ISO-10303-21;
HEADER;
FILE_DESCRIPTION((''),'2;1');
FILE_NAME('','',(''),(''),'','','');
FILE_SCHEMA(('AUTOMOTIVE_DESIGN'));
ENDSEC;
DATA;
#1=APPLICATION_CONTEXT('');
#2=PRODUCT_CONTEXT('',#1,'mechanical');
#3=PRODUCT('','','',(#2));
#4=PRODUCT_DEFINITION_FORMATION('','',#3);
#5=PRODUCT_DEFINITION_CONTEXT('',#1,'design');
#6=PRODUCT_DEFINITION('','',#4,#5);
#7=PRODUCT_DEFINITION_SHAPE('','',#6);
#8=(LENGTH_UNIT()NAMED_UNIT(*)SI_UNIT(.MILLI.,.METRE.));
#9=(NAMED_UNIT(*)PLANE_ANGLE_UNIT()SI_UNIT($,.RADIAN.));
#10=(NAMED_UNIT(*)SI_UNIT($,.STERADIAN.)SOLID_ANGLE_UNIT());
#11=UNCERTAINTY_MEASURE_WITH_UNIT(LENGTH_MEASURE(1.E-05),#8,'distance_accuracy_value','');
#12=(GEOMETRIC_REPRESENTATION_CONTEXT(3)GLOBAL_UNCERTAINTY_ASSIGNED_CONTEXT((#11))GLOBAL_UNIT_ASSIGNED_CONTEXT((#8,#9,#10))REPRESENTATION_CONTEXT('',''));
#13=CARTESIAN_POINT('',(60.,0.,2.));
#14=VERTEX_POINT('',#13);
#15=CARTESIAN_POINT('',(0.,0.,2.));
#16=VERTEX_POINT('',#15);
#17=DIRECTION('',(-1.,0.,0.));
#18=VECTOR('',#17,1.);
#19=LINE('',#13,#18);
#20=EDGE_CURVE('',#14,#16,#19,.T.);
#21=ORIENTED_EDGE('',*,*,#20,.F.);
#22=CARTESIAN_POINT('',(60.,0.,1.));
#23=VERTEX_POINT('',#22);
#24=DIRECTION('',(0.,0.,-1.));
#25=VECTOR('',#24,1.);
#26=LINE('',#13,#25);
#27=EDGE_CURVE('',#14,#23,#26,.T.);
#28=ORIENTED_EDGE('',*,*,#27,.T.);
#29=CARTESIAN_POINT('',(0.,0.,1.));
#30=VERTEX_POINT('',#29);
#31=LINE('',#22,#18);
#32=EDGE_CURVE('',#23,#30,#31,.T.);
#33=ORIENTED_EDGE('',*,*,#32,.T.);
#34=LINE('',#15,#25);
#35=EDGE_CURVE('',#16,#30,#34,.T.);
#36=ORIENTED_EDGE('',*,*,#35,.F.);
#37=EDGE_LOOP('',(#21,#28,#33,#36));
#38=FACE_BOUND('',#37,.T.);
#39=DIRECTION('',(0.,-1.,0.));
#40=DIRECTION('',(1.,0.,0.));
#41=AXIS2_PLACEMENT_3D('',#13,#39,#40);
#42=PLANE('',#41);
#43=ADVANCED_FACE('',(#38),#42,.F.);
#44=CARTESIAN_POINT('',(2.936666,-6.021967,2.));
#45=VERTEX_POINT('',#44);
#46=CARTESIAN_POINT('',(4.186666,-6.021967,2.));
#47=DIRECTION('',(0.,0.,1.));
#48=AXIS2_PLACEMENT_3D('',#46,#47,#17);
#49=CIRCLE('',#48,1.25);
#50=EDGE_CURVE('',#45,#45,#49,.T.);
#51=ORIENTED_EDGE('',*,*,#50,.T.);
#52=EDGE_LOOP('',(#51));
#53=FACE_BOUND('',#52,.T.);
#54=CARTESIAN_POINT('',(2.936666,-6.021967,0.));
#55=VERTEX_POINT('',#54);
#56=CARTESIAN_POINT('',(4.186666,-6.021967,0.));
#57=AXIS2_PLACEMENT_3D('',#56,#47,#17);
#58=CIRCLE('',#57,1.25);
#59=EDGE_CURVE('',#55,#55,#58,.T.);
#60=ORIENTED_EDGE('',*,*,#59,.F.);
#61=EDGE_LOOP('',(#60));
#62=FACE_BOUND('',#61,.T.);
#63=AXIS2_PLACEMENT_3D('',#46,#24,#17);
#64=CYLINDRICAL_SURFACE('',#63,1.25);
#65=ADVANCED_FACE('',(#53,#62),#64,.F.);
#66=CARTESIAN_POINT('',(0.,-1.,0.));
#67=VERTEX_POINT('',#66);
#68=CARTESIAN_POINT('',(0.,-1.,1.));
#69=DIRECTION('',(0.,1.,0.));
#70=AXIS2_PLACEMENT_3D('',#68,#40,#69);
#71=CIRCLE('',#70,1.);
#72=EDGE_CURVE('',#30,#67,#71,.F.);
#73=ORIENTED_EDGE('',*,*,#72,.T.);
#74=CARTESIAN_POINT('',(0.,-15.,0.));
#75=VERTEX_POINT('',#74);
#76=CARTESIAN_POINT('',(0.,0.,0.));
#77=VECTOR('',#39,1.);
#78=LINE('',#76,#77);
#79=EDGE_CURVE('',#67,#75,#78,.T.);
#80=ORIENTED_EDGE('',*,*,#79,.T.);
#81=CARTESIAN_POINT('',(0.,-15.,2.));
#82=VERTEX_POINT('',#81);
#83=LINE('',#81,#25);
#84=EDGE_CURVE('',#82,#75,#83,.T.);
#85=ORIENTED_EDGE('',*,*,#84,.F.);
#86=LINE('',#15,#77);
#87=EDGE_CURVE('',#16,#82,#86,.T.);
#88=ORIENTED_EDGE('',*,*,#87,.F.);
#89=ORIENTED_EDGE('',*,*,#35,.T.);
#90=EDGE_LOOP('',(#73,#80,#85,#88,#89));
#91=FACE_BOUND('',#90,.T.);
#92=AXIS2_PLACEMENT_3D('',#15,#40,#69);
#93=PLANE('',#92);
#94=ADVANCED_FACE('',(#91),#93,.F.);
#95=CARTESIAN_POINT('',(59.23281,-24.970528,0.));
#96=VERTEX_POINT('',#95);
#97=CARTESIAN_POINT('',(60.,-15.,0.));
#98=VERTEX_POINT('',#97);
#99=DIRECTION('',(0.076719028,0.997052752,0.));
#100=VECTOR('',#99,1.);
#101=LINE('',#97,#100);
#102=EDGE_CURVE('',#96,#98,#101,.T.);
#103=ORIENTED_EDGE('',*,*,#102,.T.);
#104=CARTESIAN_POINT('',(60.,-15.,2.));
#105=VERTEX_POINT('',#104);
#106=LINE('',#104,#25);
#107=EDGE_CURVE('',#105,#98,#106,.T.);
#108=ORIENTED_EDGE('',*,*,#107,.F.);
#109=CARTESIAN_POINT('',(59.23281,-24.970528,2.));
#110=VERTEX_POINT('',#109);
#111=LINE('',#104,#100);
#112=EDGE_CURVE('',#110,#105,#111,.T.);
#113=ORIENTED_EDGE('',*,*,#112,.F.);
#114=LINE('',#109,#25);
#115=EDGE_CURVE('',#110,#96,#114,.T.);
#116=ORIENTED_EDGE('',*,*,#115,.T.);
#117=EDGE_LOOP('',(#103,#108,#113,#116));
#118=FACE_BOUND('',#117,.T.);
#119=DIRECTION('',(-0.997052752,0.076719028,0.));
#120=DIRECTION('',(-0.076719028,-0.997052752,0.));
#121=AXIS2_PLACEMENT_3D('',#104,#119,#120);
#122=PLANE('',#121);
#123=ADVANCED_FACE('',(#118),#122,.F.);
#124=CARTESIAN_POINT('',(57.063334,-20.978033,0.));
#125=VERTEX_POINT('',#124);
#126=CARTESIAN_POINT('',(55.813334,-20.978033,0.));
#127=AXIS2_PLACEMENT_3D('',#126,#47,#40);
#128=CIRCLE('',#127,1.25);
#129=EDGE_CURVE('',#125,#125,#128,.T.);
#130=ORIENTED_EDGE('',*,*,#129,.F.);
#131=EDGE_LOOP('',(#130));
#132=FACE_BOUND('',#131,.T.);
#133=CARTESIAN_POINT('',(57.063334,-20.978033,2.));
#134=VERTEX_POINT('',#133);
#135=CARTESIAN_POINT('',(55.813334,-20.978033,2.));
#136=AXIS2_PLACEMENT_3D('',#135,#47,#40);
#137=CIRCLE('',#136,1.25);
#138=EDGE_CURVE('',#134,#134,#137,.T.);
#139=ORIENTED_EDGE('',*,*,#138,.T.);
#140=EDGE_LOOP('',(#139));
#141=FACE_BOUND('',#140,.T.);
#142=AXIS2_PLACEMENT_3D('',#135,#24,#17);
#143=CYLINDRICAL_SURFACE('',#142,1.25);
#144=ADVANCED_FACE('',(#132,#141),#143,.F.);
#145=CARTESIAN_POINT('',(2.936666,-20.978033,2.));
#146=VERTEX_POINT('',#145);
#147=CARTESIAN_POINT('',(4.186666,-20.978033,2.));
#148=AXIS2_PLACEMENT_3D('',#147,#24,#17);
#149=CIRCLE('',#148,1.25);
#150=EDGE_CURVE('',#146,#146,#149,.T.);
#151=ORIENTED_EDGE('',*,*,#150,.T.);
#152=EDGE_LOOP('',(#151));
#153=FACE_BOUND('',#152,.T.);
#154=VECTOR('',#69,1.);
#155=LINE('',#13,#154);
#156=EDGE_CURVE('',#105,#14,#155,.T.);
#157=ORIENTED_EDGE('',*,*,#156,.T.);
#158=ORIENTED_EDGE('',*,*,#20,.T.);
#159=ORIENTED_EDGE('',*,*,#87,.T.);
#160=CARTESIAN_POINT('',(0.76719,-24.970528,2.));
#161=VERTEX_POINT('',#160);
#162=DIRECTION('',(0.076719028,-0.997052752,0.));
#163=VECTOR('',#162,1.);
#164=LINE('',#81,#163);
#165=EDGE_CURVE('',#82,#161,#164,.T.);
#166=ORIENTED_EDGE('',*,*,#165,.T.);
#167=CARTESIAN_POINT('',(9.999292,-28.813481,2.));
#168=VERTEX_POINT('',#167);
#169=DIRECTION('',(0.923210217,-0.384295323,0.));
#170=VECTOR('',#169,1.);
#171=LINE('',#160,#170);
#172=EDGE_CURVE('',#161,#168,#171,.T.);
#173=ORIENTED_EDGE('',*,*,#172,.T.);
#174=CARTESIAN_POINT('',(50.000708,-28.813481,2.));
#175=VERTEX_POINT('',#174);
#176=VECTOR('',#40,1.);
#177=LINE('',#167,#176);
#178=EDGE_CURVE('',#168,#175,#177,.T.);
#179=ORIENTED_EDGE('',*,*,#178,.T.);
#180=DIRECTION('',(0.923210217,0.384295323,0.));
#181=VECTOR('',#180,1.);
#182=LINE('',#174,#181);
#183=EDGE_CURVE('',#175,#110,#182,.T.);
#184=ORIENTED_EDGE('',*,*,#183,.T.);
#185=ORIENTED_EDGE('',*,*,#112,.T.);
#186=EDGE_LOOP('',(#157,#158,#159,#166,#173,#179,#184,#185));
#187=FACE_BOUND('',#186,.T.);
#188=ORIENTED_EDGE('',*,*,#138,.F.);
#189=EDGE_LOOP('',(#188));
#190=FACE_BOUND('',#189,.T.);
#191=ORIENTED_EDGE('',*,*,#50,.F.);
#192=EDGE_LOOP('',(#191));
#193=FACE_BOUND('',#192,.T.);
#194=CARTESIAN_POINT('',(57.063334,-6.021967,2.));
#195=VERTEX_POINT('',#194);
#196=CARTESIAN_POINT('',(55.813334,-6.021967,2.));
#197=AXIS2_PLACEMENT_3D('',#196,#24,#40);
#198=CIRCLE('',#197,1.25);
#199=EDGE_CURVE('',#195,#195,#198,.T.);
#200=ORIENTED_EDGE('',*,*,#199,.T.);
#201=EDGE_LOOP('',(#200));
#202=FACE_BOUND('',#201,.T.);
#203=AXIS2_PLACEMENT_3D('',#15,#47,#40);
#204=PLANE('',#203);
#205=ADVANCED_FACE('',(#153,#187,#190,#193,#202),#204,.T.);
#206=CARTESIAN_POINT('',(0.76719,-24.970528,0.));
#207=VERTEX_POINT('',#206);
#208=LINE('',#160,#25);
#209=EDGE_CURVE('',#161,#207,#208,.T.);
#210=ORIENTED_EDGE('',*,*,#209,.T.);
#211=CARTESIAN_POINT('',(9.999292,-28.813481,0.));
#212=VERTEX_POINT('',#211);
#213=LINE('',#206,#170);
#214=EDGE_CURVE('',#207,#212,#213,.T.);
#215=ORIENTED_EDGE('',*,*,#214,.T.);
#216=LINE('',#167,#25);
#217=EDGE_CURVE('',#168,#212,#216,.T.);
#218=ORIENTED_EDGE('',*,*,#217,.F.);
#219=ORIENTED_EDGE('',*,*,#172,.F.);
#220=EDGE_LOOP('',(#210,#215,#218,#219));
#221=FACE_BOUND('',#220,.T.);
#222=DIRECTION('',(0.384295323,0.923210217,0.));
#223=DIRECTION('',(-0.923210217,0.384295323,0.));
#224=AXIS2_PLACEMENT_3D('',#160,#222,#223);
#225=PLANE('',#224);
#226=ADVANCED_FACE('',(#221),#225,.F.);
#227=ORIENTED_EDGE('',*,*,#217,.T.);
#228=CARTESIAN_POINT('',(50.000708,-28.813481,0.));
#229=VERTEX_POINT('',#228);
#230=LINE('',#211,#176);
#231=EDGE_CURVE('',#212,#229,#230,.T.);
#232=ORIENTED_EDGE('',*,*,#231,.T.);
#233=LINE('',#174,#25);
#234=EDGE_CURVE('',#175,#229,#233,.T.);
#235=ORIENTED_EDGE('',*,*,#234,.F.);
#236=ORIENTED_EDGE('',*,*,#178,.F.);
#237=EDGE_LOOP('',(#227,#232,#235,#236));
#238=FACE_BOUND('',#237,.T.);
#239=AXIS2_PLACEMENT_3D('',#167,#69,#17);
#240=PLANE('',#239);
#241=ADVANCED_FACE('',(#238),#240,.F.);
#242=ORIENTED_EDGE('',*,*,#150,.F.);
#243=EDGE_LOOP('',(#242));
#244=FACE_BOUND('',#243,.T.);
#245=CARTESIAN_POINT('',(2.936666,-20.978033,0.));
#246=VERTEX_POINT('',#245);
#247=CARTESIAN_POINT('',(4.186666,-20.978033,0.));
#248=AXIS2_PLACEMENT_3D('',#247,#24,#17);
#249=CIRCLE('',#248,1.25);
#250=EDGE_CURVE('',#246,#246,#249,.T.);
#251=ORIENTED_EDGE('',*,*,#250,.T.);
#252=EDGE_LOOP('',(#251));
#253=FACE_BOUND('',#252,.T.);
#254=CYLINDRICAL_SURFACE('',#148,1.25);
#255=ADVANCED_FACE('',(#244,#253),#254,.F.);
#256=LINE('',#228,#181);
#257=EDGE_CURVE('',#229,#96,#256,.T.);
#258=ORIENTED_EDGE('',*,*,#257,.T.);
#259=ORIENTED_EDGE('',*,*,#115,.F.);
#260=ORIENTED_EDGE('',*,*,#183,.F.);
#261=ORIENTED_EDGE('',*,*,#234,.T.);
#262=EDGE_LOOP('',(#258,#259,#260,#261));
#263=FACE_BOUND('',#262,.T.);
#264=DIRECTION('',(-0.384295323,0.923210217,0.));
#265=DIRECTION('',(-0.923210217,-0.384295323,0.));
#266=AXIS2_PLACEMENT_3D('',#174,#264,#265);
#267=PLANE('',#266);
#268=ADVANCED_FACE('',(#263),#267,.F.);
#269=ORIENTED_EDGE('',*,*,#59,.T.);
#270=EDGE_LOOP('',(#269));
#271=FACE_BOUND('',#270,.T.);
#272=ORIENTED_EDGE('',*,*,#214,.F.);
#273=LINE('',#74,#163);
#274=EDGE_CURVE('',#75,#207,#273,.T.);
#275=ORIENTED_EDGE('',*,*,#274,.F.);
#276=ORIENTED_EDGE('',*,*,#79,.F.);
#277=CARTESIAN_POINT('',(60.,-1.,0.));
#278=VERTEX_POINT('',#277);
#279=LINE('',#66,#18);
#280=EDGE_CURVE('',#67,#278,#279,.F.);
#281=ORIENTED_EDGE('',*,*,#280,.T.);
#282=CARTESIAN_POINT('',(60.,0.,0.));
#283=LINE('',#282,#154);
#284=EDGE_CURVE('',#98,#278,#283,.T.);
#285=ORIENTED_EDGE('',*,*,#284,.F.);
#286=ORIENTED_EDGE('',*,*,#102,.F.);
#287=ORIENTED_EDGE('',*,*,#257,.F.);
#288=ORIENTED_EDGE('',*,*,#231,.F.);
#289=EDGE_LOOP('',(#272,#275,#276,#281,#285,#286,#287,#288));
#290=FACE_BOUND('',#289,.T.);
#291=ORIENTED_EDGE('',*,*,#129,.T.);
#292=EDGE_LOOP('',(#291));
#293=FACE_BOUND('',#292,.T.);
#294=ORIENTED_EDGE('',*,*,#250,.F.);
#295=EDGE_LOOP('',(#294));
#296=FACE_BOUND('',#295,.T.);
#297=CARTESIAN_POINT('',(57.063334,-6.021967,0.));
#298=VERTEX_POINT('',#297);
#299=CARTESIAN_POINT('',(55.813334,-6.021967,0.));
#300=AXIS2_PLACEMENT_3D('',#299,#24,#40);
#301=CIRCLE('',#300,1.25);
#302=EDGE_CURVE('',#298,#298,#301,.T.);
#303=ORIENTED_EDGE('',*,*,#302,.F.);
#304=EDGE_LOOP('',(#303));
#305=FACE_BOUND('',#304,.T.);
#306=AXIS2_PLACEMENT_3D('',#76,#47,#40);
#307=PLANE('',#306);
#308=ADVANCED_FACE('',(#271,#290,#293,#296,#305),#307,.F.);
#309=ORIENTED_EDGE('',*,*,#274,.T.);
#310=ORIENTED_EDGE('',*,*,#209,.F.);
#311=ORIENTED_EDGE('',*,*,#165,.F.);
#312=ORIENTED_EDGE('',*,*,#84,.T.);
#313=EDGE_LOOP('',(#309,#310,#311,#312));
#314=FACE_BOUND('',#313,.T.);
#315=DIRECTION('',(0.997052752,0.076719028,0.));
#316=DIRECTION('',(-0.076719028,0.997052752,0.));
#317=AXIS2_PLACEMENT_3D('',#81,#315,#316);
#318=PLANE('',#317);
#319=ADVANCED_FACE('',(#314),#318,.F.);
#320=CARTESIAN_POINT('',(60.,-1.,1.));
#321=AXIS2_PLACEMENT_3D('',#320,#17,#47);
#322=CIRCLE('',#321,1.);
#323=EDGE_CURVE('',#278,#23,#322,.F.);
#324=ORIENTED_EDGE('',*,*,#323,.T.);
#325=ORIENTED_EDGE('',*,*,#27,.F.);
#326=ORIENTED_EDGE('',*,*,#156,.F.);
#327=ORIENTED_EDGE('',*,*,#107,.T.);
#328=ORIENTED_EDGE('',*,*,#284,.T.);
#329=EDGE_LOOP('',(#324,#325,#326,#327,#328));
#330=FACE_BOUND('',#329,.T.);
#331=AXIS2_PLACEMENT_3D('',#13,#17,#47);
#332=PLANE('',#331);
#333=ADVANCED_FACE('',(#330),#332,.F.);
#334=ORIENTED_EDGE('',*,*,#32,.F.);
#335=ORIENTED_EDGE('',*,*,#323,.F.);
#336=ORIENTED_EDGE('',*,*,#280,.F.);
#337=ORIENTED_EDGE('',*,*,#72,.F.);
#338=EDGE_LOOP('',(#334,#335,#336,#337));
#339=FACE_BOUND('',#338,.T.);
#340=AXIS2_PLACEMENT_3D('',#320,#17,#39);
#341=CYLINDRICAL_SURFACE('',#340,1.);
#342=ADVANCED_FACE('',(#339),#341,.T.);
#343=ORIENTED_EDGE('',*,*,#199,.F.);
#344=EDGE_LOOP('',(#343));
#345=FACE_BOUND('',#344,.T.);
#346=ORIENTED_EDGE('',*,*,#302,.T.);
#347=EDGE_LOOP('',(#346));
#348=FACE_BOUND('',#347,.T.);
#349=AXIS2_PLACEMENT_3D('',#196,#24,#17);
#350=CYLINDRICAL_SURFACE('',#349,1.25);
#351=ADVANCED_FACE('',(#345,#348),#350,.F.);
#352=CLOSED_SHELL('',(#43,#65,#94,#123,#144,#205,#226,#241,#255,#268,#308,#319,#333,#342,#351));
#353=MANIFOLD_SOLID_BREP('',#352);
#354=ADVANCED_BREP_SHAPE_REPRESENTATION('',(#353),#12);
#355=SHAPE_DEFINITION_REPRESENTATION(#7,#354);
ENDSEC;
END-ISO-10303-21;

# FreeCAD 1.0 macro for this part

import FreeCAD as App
import Part
import Sketcher
Q = App.Units.Quantity


def edges_at(feature, points):
    """Names of the edges that pass closest to the given points."""
    edges = feature.Shape.Edges
    near = lambda p: min(range(len(edges)), key=lambda i: edges[i].distToShape(Part.Vertex(*p))[0])
    return sorted({f"Edge{near(p) + 1}" for p in points})

doc = App.newDocument("Part")
body = doc.addObject("PartDesign::Body", "Body")

# Sketch on XY plane
sketch1 = body.newObject("Sketcher::SketchObject", "Sketch")
sketch1.AttachmentSupport = (doc.getObject("XY_Plane"), [""])
sketch1.MapMode = "FlatFace"
sketch1.addGeometry(Part.LineSegment(App.Vector(0.76719, -24.970528, 0), App.Vector(9.999292, -28.813481, 0)), False)
sketch1.addGeometry(Part.LineSegment(App.Vector(9.999292, -28.813481, 0), App.Vector(50.000708, -28.813481, 0)), False)
sketch1.addGeometry(Part.LineSegment(App.Vector(50.000708, -28.813481, 0), App.Vector(59.23281, -24.970528, 0)), False)
sketch1.addGeometry(Part.LineSegment(App.Vector(59.23281, -24.970528, 0), App.Vector(60, -15, 0)), False)
sketch1.addGeometry(Part.LineSegment(App.Vector(60, -15, 0), App.Vector(60, 0, 0)), False)
sketch1.addGeometry(Part.LineSegment(App.Vector(60, 0, 0), App.Vector(0, 0, 0)), False)
sketch1.addGeometry(Part.LineSegment(App.Vector(0, 0, 0), App.Vector(0, -15, 0)), False)
sketch1.addGeometry(Part.LineSegment(App.Vector(0, -15, 0), App.Vector(0.76719, -24.970528, 0)), False)
sketch1.addConstraint(Sketcher.Constraint("Coincident", 0, 2, 1, 1))
sketch1.addConstraint(Sketcher.Constraint("Coincident", 1, 2, 2, 1))
sketch1.addConstraint(Sketcher.Constraint("Coincident", 2, 2, 3, 1))
sketch1.addConstraint(Sketcher.Constraint("Coincident", 3, 2, 4, 1))
sketch1.addConstraint(Sketcher.Constraint("Coincident", 4, 2, 5, 1))
sketch1.addConstraint(Sketcher.Constraint("Coincident", 5, 2, 6, 1))
sketch1.addConstraint(Sketcher.Constraint("Coincident", 6, 2, 7, 1))
sketch1.addConstraint(Sketcher.Constraint("Coincident", 7, 2, 0, 1))
sketch1.addConstraint(Sketcher.Constraint("Horizontal", 1))
sketch1.addConstraint(Sketcher.Constraint("Vertical", 4))
sketch1.addConstraint(Sketcher.Constraint("Horizontal", 5))
sketch1.addConstraint(Sketcher.Constraint("Vertical", 6))
sketch1.addConstraint(Sketcher.Constraint("Coincident", 5, 2, -1, 1))
sketch1.addConstraint(Sketcher.Constraint("Horizontal", 3, 2, 6, 2))
sketch1.addConstraint(Sketcher.Constraint("Horizontal", 2, 2, 7, 2))
sketch1.addConstraint(Sketcher.Constraint("Equal", 0, 2))
sketch1.addConstraint(Sketcher.Constraint("Equal", 2, 3))
sketch1.addConstraint(Sketcher.Constraint("Equal", 3, 7))
sketch1.addConstraint(Sketcher.Constraint("DistanceX", 5, 2, 5, 1, Q("60 mm")))
sketch1.addConstraint(Sketcher.Constraint("DistanceY", 4, 1, 4, 2, Q("15 mm")))
sketch1.addConstraint(Sketcher.Constraint("Distance", 0, Q("10 mm")))
sketch1.addConstraint(Sketcher.Constraint("Angle", 0, Q("-22.6 deg")))
sketch1.addConstraint(Sketcher.Constraint("Angle", 3, Q("85.6 deg")))
pad1 = body.newObject("PartDesign::Pad", "Pad")
pad1.Profile = sketch1
pad1.Length = 2

# Sketch on XY plane
sketch2 = body.newObject("Sketcher::SketchObject", "Sketch001")
sketch2.AttachmentSupport = (doc.getObject("XY_Plane"), [""])
sketch2.MapMode = "FlatFace"
sketch2.addGeometry(Part.Circle(App.Vector(4.186666, -20.978033, 0), App.Vector(0, 0, 1), 1.25), False)
sketch2.addConstraint(Sketcher.Constraint("Diameter", 0, Q("2.5 mm")))
sketch2.addConstraint(Sketcher.Constraint("DistanceX", -1, 1, 0, 3, Q("4.186666 mm")))
sketch2.addConstraint(Sketcher.Constraint("DistanceY", 0, 3, -1, 1, Q("20.978033 mm")))
pocket1 = body.newObject("PartDesign::Pocket", "Pocket")
pocket1.Profile = sketch2
pocket1.Length = 2
pocket1.Reversed = True
doc.recompute()

datumplane = body.newObject("PartDesign::Plane", "DatumPlane")
datumplane.AttachmentSupport = (doc.getObject("YZ_Plane"), [""])
datumplane.MapMode = "FlatFace"
datumplane.AttachmentOffset = App.Placement(App.Vector(0, 0, 30), App.Rotation())
mirrored = body.newObject("PartDesign::Mirrored", "Mirrored")
mirrored.Originals = [pocket1]
mirrored.MirrorPlane = (datumplane, [""])
body.Tip = mirrored
doc.recompute()

datumplane2 = body.newObject("PartDesign::Plane", "DatumPlane001")
datumplane2.AttachmentSupport = (doc.getObject("XZ_Plane"), [""])
datumplane2.MapMode = "FlatFace"
datumplane2.AttachmentOffset = App.Placement(App.Vector(0, 0, 13.5), App.Rotation())
mirrored2 = body.newObject("PartDesign::Mirrored", "Mirrored001")
mirrored2.Originals = [pocket1]
mirrored2.MirrorPlane = (datumplane2, [""])
body.Tip = mirrored2

# Sketch on XY plane
sketch3 = body.newObject("Sketcher::SketchObject", "Sketch002")
sketch3.AttachmentSupport = (doc.getObject("XY_Plane"), [""])
sketch3.MapMode = "FlatFace"
sketch3.addGeometry(Part.Circle(App.Vector(55.813334, -6.021967, 0), App.Vector(0, 0, 1), 1.25), False)
sketch3.addConstraint(Sketcher.Constraint("Diameter", 0, Q("2.5 mm")))
sketch3.addConstraint(Sketcher.Constraint("DistanceX", -1, 1, 0, 3, Q("55.813334 mm")))
sketch3.addConstraint(Sketcher.Constraint("DistanceY", 0, 3, -1, 1, Q("6.021967 mm")))
pocket2 = body.newObject("PartDesign::Pocket", "Pocket001")
pocket2.Profile = sketch3
pocket2.Length = 2
pocket2.Reversed = True
doc.recompute()

fillet = body.newObject("PartDesign::Fillet", "Fillet")
fillet.Base = (pocket2, edges_at(pocket2, [(30, 0, 0)]))
fillet.Radius = 1

doc.recompute()
